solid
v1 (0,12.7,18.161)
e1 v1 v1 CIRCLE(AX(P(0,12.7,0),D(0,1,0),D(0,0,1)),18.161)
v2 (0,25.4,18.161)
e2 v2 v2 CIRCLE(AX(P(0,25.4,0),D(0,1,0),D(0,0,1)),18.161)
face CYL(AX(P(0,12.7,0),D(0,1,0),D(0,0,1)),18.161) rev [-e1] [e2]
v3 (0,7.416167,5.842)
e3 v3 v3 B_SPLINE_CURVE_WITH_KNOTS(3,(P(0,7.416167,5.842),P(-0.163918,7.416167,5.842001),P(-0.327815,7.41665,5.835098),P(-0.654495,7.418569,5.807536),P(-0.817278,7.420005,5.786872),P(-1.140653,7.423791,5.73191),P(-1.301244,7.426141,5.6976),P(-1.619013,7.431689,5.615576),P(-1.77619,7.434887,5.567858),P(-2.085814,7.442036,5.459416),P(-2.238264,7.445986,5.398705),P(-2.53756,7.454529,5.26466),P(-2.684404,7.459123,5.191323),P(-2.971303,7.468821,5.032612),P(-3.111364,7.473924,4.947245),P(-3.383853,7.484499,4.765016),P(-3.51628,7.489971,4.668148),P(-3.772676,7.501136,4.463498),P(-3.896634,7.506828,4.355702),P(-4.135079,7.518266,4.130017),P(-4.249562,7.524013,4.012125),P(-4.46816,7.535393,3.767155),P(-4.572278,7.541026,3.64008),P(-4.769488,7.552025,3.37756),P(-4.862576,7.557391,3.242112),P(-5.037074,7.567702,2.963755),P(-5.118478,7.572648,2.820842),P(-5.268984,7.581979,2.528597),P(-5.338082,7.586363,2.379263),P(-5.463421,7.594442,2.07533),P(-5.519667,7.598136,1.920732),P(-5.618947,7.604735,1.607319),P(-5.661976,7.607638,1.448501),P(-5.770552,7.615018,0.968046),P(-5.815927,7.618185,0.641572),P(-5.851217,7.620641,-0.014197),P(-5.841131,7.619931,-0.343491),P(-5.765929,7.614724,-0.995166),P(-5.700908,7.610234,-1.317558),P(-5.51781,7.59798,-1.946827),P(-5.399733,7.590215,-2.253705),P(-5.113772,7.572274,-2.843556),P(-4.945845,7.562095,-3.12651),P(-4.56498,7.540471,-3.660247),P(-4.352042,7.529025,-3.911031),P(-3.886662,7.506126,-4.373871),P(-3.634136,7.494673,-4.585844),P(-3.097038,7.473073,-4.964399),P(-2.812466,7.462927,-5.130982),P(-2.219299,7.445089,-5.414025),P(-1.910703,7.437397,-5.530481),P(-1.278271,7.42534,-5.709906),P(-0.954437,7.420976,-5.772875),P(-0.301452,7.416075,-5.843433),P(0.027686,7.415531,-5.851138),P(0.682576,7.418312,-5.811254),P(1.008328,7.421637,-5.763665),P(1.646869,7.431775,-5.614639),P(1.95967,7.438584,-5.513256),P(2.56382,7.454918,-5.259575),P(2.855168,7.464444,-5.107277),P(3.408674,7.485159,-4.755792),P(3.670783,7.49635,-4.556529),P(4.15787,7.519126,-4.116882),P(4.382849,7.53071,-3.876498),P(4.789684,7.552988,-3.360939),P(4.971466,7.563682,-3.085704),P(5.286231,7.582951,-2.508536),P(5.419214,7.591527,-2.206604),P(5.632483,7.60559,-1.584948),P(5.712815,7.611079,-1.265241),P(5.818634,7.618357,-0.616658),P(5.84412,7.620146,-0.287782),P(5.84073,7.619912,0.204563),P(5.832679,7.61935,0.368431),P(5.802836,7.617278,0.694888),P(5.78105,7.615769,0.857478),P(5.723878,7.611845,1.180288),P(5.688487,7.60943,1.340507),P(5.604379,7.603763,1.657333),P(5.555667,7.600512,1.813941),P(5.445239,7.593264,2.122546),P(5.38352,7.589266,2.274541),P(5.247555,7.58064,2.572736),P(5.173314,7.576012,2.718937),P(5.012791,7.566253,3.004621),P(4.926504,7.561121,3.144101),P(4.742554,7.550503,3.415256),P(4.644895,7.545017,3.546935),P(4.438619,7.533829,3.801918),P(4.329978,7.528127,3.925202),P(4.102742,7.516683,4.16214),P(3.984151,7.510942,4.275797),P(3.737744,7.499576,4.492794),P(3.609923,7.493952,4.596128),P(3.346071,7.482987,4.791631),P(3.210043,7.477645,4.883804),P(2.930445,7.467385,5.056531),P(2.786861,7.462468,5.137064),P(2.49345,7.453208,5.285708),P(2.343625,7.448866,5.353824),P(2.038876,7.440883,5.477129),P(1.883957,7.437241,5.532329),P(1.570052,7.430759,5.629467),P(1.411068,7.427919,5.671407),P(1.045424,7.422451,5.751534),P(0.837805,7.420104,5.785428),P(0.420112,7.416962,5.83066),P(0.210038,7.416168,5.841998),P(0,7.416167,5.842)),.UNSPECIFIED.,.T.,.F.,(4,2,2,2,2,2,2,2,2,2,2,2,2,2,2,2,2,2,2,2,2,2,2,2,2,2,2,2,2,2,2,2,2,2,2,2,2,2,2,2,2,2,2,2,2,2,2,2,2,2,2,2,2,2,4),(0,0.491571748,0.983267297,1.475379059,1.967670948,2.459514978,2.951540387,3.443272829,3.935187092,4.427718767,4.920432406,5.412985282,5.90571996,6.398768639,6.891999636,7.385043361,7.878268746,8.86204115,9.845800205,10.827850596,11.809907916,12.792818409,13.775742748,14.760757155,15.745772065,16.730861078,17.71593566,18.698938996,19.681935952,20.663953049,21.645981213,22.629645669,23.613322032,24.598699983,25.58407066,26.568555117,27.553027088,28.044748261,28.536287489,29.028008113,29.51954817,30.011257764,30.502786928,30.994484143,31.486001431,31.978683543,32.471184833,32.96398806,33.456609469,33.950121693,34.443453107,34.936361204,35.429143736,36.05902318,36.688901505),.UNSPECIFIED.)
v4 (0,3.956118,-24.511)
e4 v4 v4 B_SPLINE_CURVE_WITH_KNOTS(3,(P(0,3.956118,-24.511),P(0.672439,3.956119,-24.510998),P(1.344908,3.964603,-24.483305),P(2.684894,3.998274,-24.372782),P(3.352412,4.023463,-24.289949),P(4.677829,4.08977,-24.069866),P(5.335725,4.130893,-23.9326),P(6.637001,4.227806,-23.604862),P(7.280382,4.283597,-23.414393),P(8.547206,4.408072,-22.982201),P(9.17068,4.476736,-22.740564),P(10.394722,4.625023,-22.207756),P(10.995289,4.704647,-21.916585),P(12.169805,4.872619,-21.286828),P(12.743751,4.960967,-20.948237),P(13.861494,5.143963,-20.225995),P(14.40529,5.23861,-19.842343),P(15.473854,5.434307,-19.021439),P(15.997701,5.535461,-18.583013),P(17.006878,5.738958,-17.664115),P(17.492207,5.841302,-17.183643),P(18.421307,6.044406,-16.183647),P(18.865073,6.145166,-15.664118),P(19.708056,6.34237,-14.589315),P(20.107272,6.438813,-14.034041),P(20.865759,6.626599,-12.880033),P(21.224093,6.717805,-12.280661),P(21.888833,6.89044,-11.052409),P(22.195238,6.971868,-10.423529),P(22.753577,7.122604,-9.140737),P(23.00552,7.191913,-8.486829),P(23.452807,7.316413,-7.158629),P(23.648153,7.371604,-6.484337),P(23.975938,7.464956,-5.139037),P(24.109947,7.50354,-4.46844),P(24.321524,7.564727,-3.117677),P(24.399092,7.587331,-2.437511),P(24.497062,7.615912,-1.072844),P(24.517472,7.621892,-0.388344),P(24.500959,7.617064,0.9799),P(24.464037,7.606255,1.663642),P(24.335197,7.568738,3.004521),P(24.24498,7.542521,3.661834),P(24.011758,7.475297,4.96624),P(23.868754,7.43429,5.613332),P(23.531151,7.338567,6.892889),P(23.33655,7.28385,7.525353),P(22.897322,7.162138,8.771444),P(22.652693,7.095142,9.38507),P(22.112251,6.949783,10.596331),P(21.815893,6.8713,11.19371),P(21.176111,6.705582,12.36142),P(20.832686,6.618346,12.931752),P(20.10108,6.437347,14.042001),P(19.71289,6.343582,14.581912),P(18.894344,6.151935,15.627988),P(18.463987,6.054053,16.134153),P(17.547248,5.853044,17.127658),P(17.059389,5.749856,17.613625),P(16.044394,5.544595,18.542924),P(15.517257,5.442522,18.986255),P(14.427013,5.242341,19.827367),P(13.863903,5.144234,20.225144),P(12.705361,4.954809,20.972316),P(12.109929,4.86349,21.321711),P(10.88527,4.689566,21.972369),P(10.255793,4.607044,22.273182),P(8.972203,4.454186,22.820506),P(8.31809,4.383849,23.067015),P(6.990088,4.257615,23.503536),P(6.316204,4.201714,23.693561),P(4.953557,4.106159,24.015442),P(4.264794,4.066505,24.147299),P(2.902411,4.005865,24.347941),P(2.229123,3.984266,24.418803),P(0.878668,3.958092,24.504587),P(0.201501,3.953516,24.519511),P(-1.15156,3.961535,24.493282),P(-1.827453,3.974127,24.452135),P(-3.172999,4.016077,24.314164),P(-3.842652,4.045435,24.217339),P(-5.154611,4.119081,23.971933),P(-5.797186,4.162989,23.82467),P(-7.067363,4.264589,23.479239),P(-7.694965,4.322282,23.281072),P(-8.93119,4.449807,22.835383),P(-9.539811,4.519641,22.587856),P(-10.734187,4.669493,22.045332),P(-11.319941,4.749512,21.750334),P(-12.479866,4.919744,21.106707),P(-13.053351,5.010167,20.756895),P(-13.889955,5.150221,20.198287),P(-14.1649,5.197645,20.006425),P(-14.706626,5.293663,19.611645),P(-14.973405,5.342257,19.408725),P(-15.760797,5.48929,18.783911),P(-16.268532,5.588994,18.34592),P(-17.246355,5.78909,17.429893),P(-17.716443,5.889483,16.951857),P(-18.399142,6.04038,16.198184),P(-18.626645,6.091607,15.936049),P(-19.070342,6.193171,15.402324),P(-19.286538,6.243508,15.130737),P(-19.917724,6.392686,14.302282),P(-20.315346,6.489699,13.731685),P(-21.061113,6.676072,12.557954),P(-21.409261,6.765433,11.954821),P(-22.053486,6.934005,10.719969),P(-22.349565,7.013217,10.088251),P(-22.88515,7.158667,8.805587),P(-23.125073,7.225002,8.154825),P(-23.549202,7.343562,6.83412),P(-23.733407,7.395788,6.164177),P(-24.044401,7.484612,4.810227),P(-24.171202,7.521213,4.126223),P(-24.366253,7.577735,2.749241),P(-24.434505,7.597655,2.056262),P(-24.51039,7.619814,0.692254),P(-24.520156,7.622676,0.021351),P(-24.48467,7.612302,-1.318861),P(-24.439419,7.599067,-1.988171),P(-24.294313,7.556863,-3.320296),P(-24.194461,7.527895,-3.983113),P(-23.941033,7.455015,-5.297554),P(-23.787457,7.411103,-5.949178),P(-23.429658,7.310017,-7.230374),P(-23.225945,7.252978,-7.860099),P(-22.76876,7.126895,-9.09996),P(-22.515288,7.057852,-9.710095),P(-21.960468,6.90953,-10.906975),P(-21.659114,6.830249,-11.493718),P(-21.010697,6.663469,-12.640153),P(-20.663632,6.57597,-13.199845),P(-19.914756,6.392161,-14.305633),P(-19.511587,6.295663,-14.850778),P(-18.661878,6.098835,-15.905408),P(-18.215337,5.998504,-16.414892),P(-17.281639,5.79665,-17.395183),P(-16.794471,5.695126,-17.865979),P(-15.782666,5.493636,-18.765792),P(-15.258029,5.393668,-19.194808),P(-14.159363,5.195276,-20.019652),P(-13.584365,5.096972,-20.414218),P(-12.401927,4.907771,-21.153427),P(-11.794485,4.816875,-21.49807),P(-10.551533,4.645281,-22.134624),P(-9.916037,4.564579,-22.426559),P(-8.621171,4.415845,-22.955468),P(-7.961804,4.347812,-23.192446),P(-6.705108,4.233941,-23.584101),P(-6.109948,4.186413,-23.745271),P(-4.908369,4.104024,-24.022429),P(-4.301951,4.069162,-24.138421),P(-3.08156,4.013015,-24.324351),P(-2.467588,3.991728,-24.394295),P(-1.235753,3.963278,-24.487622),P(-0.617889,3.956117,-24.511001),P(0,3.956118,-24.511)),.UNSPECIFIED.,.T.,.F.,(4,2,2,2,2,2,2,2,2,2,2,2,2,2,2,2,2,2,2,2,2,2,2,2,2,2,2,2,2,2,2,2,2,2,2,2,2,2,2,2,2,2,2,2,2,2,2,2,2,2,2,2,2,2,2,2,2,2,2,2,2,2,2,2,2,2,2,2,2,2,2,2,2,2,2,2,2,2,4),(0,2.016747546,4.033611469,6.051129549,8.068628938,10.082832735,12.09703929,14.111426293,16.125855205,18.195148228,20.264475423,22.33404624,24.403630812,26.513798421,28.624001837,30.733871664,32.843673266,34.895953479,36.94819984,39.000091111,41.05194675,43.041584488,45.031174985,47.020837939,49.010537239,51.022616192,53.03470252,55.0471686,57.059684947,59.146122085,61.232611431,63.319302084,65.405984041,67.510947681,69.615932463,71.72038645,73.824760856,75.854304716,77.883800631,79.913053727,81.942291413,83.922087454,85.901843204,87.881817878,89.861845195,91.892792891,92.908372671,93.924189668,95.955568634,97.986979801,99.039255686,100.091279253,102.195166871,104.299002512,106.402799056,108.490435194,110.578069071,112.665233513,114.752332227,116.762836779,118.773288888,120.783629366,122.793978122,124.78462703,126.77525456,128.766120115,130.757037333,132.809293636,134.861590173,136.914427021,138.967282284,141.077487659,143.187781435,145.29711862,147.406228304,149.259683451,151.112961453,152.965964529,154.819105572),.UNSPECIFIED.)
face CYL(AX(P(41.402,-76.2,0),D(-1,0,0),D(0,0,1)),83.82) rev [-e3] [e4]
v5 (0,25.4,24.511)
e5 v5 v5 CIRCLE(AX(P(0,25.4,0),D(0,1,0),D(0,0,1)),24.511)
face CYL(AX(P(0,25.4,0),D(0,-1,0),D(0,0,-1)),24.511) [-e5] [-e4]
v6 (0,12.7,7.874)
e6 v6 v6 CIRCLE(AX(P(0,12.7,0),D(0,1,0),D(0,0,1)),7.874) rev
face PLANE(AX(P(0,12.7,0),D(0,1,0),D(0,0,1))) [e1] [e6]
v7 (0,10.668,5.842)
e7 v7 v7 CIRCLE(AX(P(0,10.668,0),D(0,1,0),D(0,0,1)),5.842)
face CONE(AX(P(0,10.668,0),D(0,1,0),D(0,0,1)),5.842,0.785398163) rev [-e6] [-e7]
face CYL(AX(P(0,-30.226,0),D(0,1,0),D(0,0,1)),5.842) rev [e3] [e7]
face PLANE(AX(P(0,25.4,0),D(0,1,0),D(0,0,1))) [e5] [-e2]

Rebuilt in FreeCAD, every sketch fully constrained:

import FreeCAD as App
import Part
import Sketcher
Q = App.Units.Quantity


def edges_at(feature, points):
    """Names of the edges that pass closest to the given points."""
    edges = feature.Shape.Edges
    near = lambda p: min(range(len(edges)), key=lambda i: edges[i].distToShape(Part.Vertex(*p))[0])
    return sorted({f"Edge{near(p) + 1}" for p in points})

doc = App.newDocument("Part")
body = doc.addObject("PartDesign::Body", "Body")

# Sketch on XZ plane
sketch1 = doc.addObject("Sketcher::SketchObject", "Sketch")
body.addObject(sketch1)
sketch1.AttachmentSupport = (doc.XZ_Plane, [""])
sketch1.MapMode = "FlatFace"
sketch1.addGeometry(Part.Circle(App.Vector(0, 0, 0), App.Vector(0, 0, 1), 25), False)
sketch1.addConstraint([
    Sketcher.Constraint("Coincident", 0, 3, -1, 1),
    Sketcher.Constraint("Diameter", 0, Q("1.93 in")),
])
pad1 = doc.addObject("PartDesign::Pad", "Pad")
body.addObject(pad1)
pad1.Profile = sketch1
pad1.Length = Q("1 in")
pad1.Reversed = True

# Sketch on XZ plane
sketch2 = doc.addObject("Sketcher::SketchObject", "Sketch001")
body.addObject(sketch2)
sketch2.AttachmentSupport = (doc.XZ_Plane, [""])
sketch2.MapMode = "FlatFace"
sketch2.AttachmentOffset = App.Placement(App.Vector(0, 0, -1 * 25.4), App.Rotation())
sketch2.addGeometry(Part.Circle(App.Vector(0, 0, 0), App.Vector(0, 0, 1), 18), False)
sketch2.addConstraint([
    Sketcher.Constraint("Coincident", 0, 3, -1, 1),
    Sketcher.Constraint("Diameter", 0, Q("1.43 in")),
])
pocket1 = doc.addObject("PartDesign::Pocket", "Pocket")
body.addObject(pocket1)
pocket1.Profile = sketch2
pocket1.Length = Q("0.5 in")
pocket1.Reversed = True

# Sketch on YZ plane
sketch3 = doc.addObject("Sketcher::SketchObject", "Sketch002")
body.addObject(sketch3)
sketch3.AttachmentSupport = (doc.YZ_Plane, [""])
sketch3.MapMode = "FlatFace"
sketch3.addGeometry(Part.Circle(App.Vector(-76, 0, 0), App.Vector(0, 0, 1), 84), False)
sketch3.addConstraint([
    Sketcher.Constraint("PointOnObject", 0, 3, -1),
    Sketcher.Constraint("Diameter", 0, Q("6.6 in")),
    Sketcher.Constraint("DistanceX", 0, 3, -1, 1, Q("3 in")),
])
pocket2 = doc.addObject("PartDesign::Pocket", "Pocket001")
body.addObject(pocket2)
pocket2.Profile = sketch3
pocket2.Type = "ThroughAll"
pocket2.Midplane = True

# Sketch on XZ plane
sketch4 = doc.addObject("Sketcher::SketchObject", "Sketch003")
body.addObject(sketch4)
sketch4.AttachmentSupport = (doc.XZ_Plane, [""])
sketch4.MapMode = "FlatFace"
sketch4.AttachmentOffset = App.Placement(App.Vector(0, 0, -0.5 * 25.4), App.Rotation())
sketch4.addGeometry(Part.Circle(App.Vector(0, 0, 0), App.Vector(0, 0, 1), 6), False)
sketch4.addConstraint([
    Sketcher.Constraint("Coincident", 0, 3, -1, 1),
    Sketcher.Constraint("Diameter", 0, Q("0.46 in")),
])
pocket3 = doc.addObject("PartDesign::Pocket", "Pocket002")
body.addObject(pocket3)
pocket3.Profile = sketch4
pocket3.Length = Q("1.69 in")
pocket3.Reversed = True
doc.recompute()

chamfer = doc.addObject("PartDesign::Chamfer", "Chamfer")
body.addObject(chamfer)
chamfer.Base = (pocket3, edges_at(pocket3, [(-5.842, 12.7, 0)]))
chamfer.Size = Q("0.08 in")

doc.recompute()
